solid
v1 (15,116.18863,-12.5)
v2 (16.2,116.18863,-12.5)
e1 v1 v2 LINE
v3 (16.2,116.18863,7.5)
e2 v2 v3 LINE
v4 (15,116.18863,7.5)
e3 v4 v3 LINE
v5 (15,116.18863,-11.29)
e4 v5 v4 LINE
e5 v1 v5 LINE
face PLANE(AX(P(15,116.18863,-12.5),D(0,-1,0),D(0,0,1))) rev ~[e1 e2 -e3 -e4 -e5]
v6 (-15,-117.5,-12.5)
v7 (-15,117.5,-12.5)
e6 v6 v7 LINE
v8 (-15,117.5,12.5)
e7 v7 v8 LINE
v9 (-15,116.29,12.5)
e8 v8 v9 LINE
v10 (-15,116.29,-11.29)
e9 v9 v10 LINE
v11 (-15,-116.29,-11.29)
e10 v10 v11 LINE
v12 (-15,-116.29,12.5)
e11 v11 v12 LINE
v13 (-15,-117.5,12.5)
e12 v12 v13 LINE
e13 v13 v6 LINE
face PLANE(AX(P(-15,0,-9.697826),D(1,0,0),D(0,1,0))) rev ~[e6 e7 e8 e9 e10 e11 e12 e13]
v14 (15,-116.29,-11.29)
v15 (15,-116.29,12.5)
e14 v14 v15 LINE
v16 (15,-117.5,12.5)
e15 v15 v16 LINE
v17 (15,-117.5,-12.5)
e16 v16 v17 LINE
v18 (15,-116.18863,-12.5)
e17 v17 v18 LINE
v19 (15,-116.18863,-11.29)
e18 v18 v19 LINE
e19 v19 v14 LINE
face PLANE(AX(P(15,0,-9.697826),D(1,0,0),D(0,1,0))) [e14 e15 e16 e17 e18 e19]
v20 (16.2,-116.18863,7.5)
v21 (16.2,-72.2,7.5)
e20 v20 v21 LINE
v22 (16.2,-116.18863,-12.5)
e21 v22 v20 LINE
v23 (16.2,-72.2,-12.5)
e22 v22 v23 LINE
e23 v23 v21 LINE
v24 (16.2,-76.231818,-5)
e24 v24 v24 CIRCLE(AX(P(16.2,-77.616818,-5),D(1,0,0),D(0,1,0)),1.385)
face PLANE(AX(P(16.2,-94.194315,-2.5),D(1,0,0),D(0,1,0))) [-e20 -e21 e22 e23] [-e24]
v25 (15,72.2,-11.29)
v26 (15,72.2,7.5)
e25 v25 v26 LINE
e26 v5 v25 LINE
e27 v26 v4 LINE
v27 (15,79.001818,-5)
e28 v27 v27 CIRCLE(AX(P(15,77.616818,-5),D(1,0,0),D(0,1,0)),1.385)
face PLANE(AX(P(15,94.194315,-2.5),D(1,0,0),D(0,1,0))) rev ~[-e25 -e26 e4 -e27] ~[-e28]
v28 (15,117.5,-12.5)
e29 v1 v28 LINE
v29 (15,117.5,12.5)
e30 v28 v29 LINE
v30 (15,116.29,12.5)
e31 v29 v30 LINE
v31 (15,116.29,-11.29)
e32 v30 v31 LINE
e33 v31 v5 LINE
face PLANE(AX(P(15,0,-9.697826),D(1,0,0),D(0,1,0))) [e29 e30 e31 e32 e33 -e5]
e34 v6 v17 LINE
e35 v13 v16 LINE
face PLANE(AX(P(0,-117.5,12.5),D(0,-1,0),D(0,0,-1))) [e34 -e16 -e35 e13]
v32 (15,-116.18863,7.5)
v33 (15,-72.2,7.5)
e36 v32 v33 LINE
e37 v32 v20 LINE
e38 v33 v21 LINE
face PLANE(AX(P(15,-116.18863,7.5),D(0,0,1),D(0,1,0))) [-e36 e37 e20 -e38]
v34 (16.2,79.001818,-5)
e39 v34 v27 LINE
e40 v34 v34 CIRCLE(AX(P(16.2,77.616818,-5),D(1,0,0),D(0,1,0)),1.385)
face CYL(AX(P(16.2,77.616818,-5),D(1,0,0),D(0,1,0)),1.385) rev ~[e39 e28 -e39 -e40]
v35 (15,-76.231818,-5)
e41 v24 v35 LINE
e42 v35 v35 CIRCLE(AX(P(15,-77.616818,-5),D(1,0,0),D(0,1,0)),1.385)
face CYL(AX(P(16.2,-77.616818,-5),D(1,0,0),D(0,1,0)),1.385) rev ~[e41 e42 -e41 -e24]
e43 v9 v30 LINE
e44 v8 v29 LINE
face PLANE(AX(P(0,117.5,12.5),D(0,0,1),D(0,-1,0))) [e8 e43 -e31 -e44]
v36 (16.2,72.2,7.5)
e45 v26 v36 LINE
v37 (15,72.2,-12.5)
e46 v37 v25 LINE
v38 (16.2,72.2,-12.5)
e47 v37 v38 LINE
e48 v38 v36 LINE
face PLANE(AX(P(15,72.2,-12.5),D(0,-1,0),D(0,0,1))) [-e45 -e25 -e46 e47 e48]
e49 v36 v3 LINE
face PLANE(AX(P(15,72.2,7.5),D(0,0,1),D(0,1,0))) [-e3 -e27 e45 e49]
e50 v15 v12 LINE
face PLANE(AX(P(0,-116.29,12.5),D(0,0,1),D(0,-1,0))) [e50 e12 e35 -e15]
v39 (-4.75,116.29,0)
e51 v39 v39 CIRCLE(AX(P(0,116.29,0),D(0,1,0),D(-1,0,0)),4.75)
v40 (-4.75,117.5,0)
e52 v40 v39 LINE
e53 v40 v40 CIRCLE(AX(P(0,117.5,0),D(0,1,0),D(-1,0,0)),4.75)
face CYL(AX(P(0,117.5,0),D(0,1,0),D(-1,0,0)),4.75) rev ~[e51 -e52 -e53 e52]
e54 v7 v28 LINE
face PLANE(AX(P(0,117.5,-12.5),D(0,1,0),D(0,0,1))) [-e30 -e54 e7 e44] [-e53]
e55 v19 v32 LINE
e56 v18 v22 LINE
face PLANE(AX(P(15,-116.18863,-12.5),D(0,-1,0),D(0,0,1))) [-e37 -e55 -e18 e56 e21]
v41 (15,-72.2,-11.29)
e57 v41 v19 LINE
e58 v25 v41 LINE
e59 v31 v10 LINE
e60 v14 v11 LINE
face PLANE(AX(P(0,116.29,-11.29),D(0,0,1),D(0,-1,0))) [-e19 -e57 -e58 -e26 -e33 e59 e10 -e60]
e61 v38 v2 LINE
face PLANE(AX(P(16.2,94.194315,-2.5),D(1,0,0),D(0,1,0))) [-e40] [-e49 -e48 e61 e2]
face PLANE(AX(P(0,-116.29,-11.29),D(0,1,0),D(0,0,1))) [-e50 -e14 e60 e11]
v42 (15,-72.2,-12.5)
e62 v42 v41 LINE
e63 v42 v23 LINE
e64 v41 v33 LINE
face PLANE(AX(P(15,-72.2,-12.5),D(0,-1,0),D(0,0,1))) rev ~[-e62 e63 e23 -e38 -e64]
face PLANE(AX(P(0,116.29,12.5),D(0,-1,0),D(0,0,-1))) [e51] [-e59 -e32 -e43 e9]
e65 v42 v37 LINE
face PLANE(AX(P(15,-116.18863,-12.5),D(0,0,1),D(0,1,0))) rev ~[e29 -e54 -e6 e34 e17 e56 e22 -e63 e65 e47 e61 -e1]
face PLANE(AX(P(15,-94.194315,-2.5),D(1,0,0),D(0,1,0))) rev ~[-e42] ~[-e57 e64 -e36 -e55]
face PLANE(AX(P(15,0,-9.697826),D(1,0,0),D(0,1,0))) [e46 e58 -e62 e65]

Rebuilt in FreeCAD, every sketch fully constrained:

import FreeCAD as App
import Part
import Sketcher

V = App.Vector
Q = App.Units.Quantity

doc = App.newDocument("Part")
params = doc.addObject("Spreadsheet::Sheet", "Params")
for row, (alias, value) in enumerate([
    ("sketch1_width", "235 mm"),
    ("sketch1_height", "25 mm"),
    ("sketch1_width2", "1.21 mm"),
    ("sketch1_height2", "23.79 mm"),
    ("pad1_length", "30 mm"),
    ("sketch2_height", "20 mm"),
    ("pad2_length", "1.2 mm"),
    ("sketch3_diameter", "9.5 mm"),
    ("pocket1_length", "1.21 mm"),
    ("sketch4_diameter", "2.77 mm"),
], start=1):
    params.set(f"A{row}", alias)
    params.set(f"B{row}", "=" + value)
    params.setAlias(f"B{row}", alias)

body = doc.addObject("PartDesign::Body", "Body")

sketch1 = doc.addObject("Sketcher::SketchObject", "Sketch")
body.addObject(sketch1)
sketch1.AttachmentSupport = (doc.YZ_Plane, [""])
sketch1.MapMode = "FlatFace"
sketch1.addGeometry([
    Part.LineSegment(V(-116.3, 12.5, 0), V(-117.5, 12.5, 0)),
    Part.LineSegment(V(-117.5, 12.5, 0), V(-117.5, -12.5, 0)),
    Part.LineSegment(V(-117.5, -12.5, 0), V(117.5, -12.5, 0)),
    Part.LineSegment(V(117.5, -12.5, 0), V(117.5, 12.5, 0)),
    Part.LineSegment(V(117.5, 12.5, 0), V(116.3, 12.5, 0)),
    Part.LineSegment(V(116.3, 12.5, 0), V(116.3, -11.3, 0)),
    Part.LineSegment(V(116.3, -11.3, 0), V(-116.3, -11.3, 0)),
    Part.LineSegment(V(-116.3, -11.3, 0), V(-116.3, 12.5, 0)),
], False)
sketch1.addConstraint([
    Sketcher.Constraint("Coincident", 0, 2, 1, 1),
    Sketcher.Constraint("Coincident", 1, 2, 2, 1),
    Sketcher.Constraint("Coincident", 2, 2, 3, 1),
    Sketcher.Constraint("Coincident", 3, 2, 4, 1),
    Sketcher.Constraint("Coincident", 4, 2, 5, 1),
    Sketcher.Constraint("Coincident", 5, 2, 6, 1),
    Sketcher.Constraint("Coincident", 6, 2, 7, 1),
    Sketcher.Constraint("Coincident", 7, 2, 0, 1),
    Sketcher.Constraint("Horizontal", 0),
    Sketcher.Constraint("Vertical", 1),
    Sketcher.Constraint("Horizontal", 2),
    Sketcher.Constraint("Vertical", 3),
    Sketcher.Constraint("Horizontal", 4),
    Sketcher.Constraint("Vertical", 5),
    Sketcher.Constraint("Horizontal", 6),
    Sketcher.Constraint("Vertical", 7),
    Sketcher.Constraint("Symmetric", 0, 2, 2, 2, -1, 1),
    Sketcher.Constraint("Symmetric", 4, 2, 7, 2, -2),
    Sketcher.Constraint("DistanceX", 2, 1, 2, 2, Q("235 mm")),
    Sketcher.Constraint("DistanceY", 1, 2, 1, 1, Q("25 mm")),
    Sketcher.Constraint("DistanceX", 0, 2, 0, 1, Q("1.21 mm")),
    Sketcher.Constraint("DistanceY", 5, 2, 5, 1, Q("23.79 mm")),
])
sketch1.setExpression("Constraints[18]", "Params.sketch1_width")
sketch1.setExpression("Constraints[19]", "Params.sketch1_height")
sketch1.setExpression("Constraints[20]", "Params.sketch1_width2")
sketch1.setExpression("Constraints[21]", "Params.sketch1_height2")
pad1 = doc.addObject("PartDesign::Pad", "Pad")
body.addObject(pad1)
pad1.Profile = sketch1
pad1.setExpression("Length", "Params.pad1_length")
pad1.Midplane = True

sketch2 = doc.addObject("Sketcher::SketchObject", "Sketch001")
body.addObject(sketch2)
sketch2.AttachmentSupport = (doc.YZ_Plane, [""])
sketch2.MapMode = "FlatFace"
sketch2.AttachmentOffset = App.Placement(V(0, 0, 15), App.Rotation())
sketch2.addGeometry([
    Part.LineSegment(V(-116, 8, 0), V(-116, -12, 0)),
    Part.LineSegment(V(-116, -12, 0), V(-72, -12, 0)),
    Part.LineSegment(V(-72, -12, 0), V(-72, 8, 0)),
    Part.LineSegment(V(-72, 8, 0), V(-116, 8, 0)),
    Part.LineSegment(V(72, 8, 0), V(72, -12, 0)),
    Part.LineSegment(V(72, -12, 0), V(116, -12, 0)),
    Part.LineSegment(V(116, -12, 0), V(116, 8, 0)),
    Part.LineSegment(V(116, 8, 0), V(72, 8, 0)),
], False)
sketch2.addConstraint([
    Sketcher.Constraint("Coincident", 0, 2, 1, 1),
    Sketcher.Constraint("Coincident", 1, 2, 2, 1),
    Sketcher.Constraint("Coincident", 2, 2, 3, 1),
    Sketcher.Constraint("Coincident", 3, 2, 0, 1),
    Sketcher.Constraint("Coincident", 4, 2, 5, 1),
    Sketcher.Constraint("Coincident", 5, 2, 6, 1),
    Sketcher.Constraint("Coincident", 6, 2, 7, 1),
    Sketcher.Constraint("Coincident", 7, 2, 4, 1),
    Sketcher.Constraint("Vertical", 0),
    Sketcher.Constraint("Horizontal", 1),
    Sketcher.Constraint("Vertical", 2),
    Sketcher.Constraint("Horizontal", 3),
    Sketcher.Constraint("Vertical", 4),
    Sketcher.Constraint("Horizontal", 5),
    Sketcher.Constraint("Vertical", 6),
    Sketcher.Constraint("Horizontal", 7),
    Sketcher.Constraint("Symmetric", 1, 2, 4, 2, -2),
    Sketcher.Constraint("Symmetric", 3, 2, 6, 2, -2),
    Sketcher.Constraint("DistanceY", 0, 2, 0, 1, Q("20 mm")),
    Sketcher.Constraint("DistanceY", 0, 2, -1, 1, Q("12.5 mm")),
    Sketcher.Constraint("DistanceX", 1, 2, -1, 1, Q("72.2 mm")),
    Sketcher.Constraint("DistanceX", 1, 1, 1, 2, Q("43.98863 mm")),
])
sketch2.setExpression("Constraints[18]", "Params.sketch2_height")
pad2 = doc.addObject("PartDesign::Pad", "Pad001")
body.addObject(pad2)
pad2.Profile = sketch2
pad2.setExpression("Length", "Params.pad2_length")

sketch3 = doc.addObject("Sketcher::SketchObject", "Sketch002")
body.addObject(sketch3)
sketch3.AttachmentSupport = (doc.XZ_Plane, [""])
sketch3.MapMode = "FlatFace"
sketch3.AttachmentOffset = App.Placement(V(0, 0, -117.5), App.Rotation())
sketch3.addGeometry(Part.Circle(V(0, 0, 0), V(0, 0, 1), 4.8), False)
sketch3.addConstraint([
    Sketcher.Constraint("Coincident", 0, 3, -1, 1),
    Sketcher.Constraint("Diameter", 0, Q("9.5 mm")),
])
sketch3.setExpression("Constraints[1]", "Params.sketch3_diameter")
pocket1 = doc.addObject("PartDesign::Pocket", "Pocket")
body.addObject(pocket1)
pocket1.Profile = sketch3
pocket1.setExpression("Length", "Params.pocket1_length")
pocket1.Reversed = True

sketch4 = doc.addObject("Sketcher::SketchObject", "Sketch003")
body.addObject(sketch4)
sketch4.AttachmentSupport = (doc.YZ_Plane, [""])
sketch4.MapMode = "FlatFace"
sketch4.AttachmentOffset = App.Placement(V(0, 0, 16.2), App.Rotation())
sketch4.addGeometry([
    Part.Circle(V(-77.6, -5, 0), V(0, 0, 1), 1.4),
    Part.Circle(V(77.6, -5, 0), V(0, 0, 1), 1.4),
], False)
sketch4.addConstraint([
    Sketcher.Constraint("Equal", 0, 1),
    Sketcher.Constraint("Symmetric", 0, 3, 1, 3, -2),
    Sketcher.Constraint("Diameter", 0, Q("2.77 mm")),
    Sketcher.Constraint("DistanceY", 0, 3, -1, 1, Q("5 mm")),
    Sketcher.Constraint("DistanceX", 0, 3, -1, 1, Q("77.616818 mm")),
])
sketch4.setExpression("Constraints[2]", "Params.sketch4_diameter")
pocket2 = doc.addObject("PartDesign::Pocket", "Pocket001")
body.addObject(pocket2)
pocket2.Profile = sketch4
pocket2.Type = "ThroughAll"

doc.recompute()
